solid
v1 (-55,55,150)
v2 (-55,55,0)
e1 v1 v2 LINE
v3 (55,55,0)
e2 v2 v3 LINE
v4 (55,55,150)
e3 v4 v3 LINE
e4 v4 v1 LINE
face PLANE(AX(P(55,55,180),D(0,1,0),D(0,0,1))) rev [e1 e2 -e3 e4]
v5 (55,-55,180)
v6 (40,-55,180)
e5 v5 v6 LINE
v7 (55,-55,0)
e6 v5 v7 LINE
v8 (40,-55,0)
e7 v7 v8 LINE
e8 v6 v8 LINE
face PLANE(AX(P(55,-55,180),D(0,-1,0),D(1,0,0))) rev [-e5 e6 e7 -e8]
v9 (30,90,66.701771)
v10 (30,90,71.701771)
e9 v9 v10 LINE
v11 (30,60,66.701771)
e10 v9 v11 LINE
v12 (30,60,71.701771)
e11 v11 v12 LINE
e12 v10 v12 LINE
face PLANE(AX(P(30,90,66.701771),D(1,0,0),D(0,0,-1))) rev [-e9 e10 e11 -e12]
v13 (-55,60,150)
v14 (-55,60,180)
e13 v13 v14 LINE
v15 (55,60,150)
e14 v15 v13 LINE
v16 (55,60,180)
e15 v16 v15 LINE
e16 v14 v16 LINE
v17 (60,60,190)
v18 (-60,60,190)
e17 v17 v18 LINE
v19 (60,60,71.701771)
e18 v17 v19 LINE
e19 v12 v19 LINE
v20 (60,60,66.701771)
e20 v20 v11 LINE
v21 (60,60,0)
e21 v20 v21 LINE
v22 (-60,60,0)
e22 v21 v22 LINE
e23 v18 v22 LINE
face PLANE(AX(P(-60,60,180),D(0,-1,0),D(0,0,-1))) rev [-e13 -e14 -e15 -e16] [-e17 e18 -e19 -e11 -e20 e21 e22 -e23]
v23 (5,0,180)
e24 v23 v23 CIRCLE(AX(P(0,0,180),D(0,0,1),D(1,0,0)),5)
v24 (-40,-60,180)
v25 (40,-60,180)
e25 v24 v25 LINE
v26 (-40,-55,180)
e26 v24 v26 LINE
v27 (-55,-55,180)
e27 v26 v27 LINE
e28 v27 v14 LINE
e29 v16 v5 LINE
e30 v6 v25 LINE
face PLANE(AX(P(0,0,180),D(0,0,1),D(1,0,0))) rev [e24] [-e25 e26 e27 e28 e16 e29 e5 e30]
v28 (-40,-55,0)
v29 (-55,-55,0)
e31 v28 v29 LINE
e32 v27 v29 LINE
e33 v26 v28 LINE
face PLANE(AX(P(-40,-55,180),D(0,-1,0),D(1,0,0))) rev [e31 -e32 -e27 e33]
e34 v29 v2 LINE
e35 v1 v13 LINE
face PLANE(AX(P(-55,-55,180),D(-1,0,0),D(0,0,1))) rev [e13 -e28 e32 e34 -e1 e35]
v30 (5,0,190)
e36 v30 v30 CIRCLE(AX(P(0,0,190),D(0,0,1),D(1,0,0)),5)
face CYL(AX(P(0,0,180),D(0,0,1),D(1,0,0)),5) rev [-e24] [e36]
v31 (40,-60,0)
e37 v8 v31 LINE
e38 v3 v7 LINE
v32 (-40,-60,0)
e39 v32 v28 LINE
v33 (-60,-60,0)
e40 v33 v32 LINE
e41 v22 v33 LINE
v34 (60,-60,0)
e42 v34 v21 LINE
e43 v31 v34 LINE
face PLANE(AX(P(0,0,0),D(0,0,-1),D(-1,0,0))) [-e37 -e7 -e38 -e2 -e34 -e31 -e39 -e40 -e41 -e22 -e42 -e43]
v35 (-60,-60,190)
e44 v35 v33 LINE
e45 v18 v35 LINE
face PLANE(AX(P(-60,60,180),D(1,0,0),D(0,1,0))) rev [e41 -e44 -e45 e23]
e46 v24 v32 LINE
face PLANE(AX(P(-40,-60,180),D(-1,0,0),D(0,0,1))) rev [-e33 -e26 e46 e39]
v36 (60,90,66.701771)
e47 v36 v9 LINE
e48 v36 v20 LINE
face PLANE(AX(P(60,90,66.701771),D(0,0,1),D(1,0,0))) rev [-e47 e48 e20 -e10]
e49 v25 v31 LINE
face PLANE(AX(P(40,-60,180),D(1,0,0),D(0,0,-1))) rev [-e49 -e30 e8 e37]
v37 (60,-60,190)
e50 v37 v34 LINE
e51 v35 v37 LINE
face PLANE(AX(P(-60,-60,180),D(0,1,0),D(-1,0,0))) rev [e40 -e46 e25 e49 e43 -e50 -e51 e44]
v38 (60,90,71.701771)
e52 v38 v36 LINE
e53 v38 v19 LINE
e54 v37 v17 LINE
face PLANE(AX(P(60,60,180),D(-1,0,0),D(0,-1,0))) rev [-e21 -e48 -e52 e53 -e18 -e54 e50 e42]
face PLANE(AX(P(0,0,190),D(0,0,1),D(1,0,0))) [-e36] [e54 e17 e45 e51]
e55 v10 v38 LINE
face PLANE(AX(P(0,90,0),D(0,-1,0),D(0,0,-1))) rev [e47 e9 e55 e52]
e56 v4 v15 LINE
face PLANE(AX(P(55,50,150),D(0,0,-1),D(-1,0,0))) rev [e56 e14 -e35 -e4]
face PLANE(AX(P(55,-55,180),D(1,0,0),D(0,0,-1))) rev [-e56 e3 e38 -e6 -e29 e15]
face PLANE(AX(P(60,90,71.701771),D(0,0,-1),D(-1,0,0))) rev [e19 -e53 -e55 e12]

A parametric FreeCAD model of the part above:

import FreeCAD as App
import Part
import Sketcher

V = App.Vector

doc = App.newDocument("Part")
body = doc.addObject("PartDesign::Body", "Body")

# Sketch on XY plane
sketch1 = doc.addObject("Sketcher::SketchObject", "Sketch")
body.addObject(sketch1)
sketch1.AttachmentSupport = (doc.XY_Plane, [""])
sketch1.MapMode = "FlatFace"
sketch1.addGeometry([
    Part.LineSegment(V(60, 60, 0), V(-60, 60, 0)),  # 0
    Part.LineSegment(V(-60, 60, 0), V(-60, -60, 0)),  # 1
    Part.LineSegment(V(-60, -60, 0), V(-40, -60, 0)),  # 2
    Part.LineSegment(V(-40, -60, 0), V(-40, -55, 0)),  # 3
    Part.LineSegment(V(-40, -55, 0), V(-55, -55, 0)),  # 4
    Part.LineSegment(V(-55, -55, 0), V(-55, 55, 0)),  # 5
    Part.LineSegment(V(-55, 55, 0), V(55, 55, 0)),  # 6
    Part.LineSegment(V(55, 55, 0), V(55, -55, 0)),  # 7
    Part.LineSegment(V(55, -55, 0), V(40, -55, 0)),  # 8
    Part.LineSegment(V(40, -55, 0), V(40, -60, 0)),  # 9
    Part.LineSegment(V(40, -60, 0), V(60, -60, 0)),  # 10
    Part.LineSegment(V(60, -60, 0), V(60, 60, 0)),  # 11
], False)
sketch1.addConstraint([
    Sketcher.Constraint("Coincident", 0, 2, 1, 1),
    Sketcher.Constraint("Coincident", 1, 2, 2, 1),
    Sketcher.Constraint("Coincident", 2, 2, 3, 1),
    Sketcher.Constraint("Coincident", 3, 2, 4, 1),
    Sketcher.Constraint("Coincident", 4, 2, 5, 1),
    Sketcher.Constraint("Coincident", 5, 2, 6, 1),
    Sketcher.Constraint("Coincident", 6, 2, 7, 1),
    Sketcher.Constraint("Coincident", 7, 2, 8, 1),
    Sketcher.Constraint("Coincident", 8, 2, 9, 1),
    Sketcher.Constraint("Coincident", 9, 2, 10, 1),
    Sketcher.Constraint("Coincident", 10, 2, 11, 1),
    Sketcher.Constraint("Coincident", 11, 2, 0, 1),
    Sketcher.Constraint("Horizontal", 0),
    Sketcher.Constraint("Vertical", 1),
    Sketcher.Constraint("Horizontal", 2),
    Sketcher.Constraint("Vertical", 3),
    Sketcher.Constraint("Horizontal", 4),
    Sketcher.Constraint("Vertical", 5),
    Sketcher.Constraint("Horizontal", 6),
    Sketcher.Constraint("Vertical", 7),
    Sketcher.Constraint("Horizontal", 8),
    Sketcher.Constraint("Vertical", 9),
    Sketcher.Constraint("Horizontal", 10),
    Sketcher.Constraint("Vertical", 11),
    Sketcher.Constraint("Symmetric", 4, 2, 6, 2, -1, 1),
    Sketcher.Constraint("Symmetric", 0, 2, 10, 2, -1, 1),
    Sketcher.Constraint("Symmetric", 3, 2, 8, 2, -2),
    Sketcher.Constraint("Horizontal", 2, 2, 9, 2),
    Sketcher.Constraint("Equal", 0, 1),
    Sketcher.Constraint("Equal", 6, 5),
    Sketcher.Constraint("DistanceX", 0, 2, 0, 1, 120.0),
    Sketcher.Constraint("DistanceX", 2, 1, 2, 2, 20.0),
    Sketcher.Constraint("DistanceX", 4, 2, 4, 1, 15.0),
])
pad1 = doc.addObject("PartDesign::Pad", "Pad")
body.addObject(pad1)
pad1.Profile = sketch1
pad1.Length = 180

# Sketch on XY plane
sketch2 = doc.addObject("Sketcher::SketchObject", "Sketch001")
body.addObject(sketch2)
sketch2.AttachmentSupport = (doc.XY_Plane, [""])
sketch2.MapMode = "FlatFace"
sketch2.AttachmentOffset = App.Placement(V(0, 0, 180), App.Rotation())
sketch2.addGeometry([
    Part.LineSegment(V(-60, 60, 0), V(-60, -60, 0)),
    Part.LineSegment(V(-60, -60, 0), V(60, -60, 0)),
    Part.LineSegment(V(60, -60, 0), V(60, 60, 0)),
    Part.LineSegment(V(60, 60, 0), V(-60, 60, 0)),
], False)
sketch2.addConstraint([
    Sketcher.Constraint("Coincident", 0, 2, 1, 1),
    Sketcher.Constraint("Coincident", 1, 2, 2, 1),
    Sketcher.Constraint("Coincident", 2, 2, 3, 1),
    Sketcher.Constraint("Coincident", 3, 2, 0, 1),
    Sketcher.Constraint("Vertical", 0),
    Sketcher.Constraint("Horizontal", 1),
    Sketcher.Constraint("Vertical", 2),
    Sketcher.Constraint("Horizontal", 3),
    Sketcher.Constraint("Symmetric", 0, 2, 2, 2, -1, 1),
    Sketcher.Constraint("Equal", 3, 0),
    Sketcher.Constraint("DistanceX", 1, 1, 1, 2, 120.0),
])
pad2 = doc.addObject("PartDesign::Pad", "Pad001")
body.addObject(pad2)
pad2.Profile = sketch2
pad2.Length = 10

# Sketch on XY plane
sketch3 = doc.addObject("Sketcher::SketchObject", "Sketch002")
body.addObject(sketch3)
sketch3.AttachmentSupport = (doc.XY_Plane, [""])
sketch3.MapMode = "FlatFace"
sketch3.AttachmentOffset = App.Placement(V(0, 0, 190), App.Rotation())
sketch3.addGeometry(Part.Circle(V(0, 0, 0), V(0, 0, 1), 5), False)
sketch3.addConstraint([
    Sketcher.Constraint("Coincident", 0, 3, -1, 1),
    Sketcher.Constraint("Diameter", 0, 10.0),
])
pocket1 = doc.addObject("PartDesign::Pocket", "Pocket")
body.addObject(pocket1)
pocket1.Profile = sketch3
pocket1.Length = 10

# Sketch on XZ plane
sketch4 = doc.addObject("Sketcher::SketchObject", "Sketch003")
body.addObject(sketch4)
sketch4.AttachmentSupport = (doc.XZ_Plane, [""])
sketch4.MapMode = "FlatFace"
sketch4.AttachmentOffset = App.Placement(V(0, 0, -60), App.Rotation())
sketch4.addGeometry([
    Part.LineSegment(V(-55, 150, 0), V(-55, 180, 0)),
    Part.LineSegment(V(-55, 180, 0), V(55, 180, 0)),
    Part.LineSegment(V(55, 180, 0), V(55, 150, 0)),
    Part.LineSegment(V(55, 150, 0), V(-55, 150, 0)),
], False)
sketch4.addConstraint([
    Sketcher.Constraint("Coincident", 0, 2, 1, 1),
    Sketcher.Constraint("Coincident", 1, 2, 2, 1),
    Sketcher.Constraint("Coincident", 2, 2, 3, 1),
    Sketcher.Constraint("Coincident", 3, 2, 0, 1),
    Sketcher.Constraint("Vertical", 0),
    Sketcher.Constraint("Horizontal", 1),
    Sketcher.Constraint("Vertical", 2),
    Sketcher.Constraint("Horizontal", 3),
    Sketcher.Constraint("DistanceX", 1, 1, 1, 2, 110.0),
    Sketcher.Constraint("DistanceY", 0, 1, 0, 2, 30.0),
    Sketcher.Constraint("DistanceX", 0, 2, -1, 1, 55.0),
    Sketcher.Constraint("DistanceY", -1, 1, 0, 2, 180.0),
])
pocket2 = doc.addObject("PartDesign::Pocket", "Pocket001")
body.addObject(pocket2)
pocket2.Profile = sketch4
pocket2.Length = 10
pocket2.Reversed = True

# Sketch on XZ plane
sketch5 = doc.addObject("Sketcher::SketchObject", "Sketch004")
body.addObject(sketch5)
sketch5.AttachmentSupport = (doc.XZ_Plane, [""])
sketch5.MapMode = "FlatFace"
sketch5.AttachmentOffset = App.Placement(V(0, 0, -60), App.Rotation())
sketch5.addGeometry([
    Part.LineSegment(V(30, 67, 0), V(30, 72, 0)),
    Part.LineSegment(V(30, 72, 0), V(60, 72, 0)),
    Part.LineSegment(V(60, 72, 0), V(60, 67, 0)),
    Part.LineSegment(V(60, 67, 0), V(30, 67, 0)),
], False)
sketch5.addConstraint([
    Sketcher.Constraint("Coincident", 0, 2, 1, 1),
    Sketcher.Constraint("Coincident", 1, 2, 2, 1),
    Sketcher.Constraint("Coincident", 2, 2, 3, 1),
    Sketcher.Constraint("Coincident", 3, 2, 0, 1),
    Sketcher.Constraint("Vertical", 0),
    Sketcher.Constraint("Horizontal", 1),
    Sketcher.Constraint("Vertical", 2),
    Sketcher.Constraint("Horizontal", 3),
    Sketcher.Constraint("DistanceX", 1, 1, 1, 2, 30.0),
    Sketcher.Constraint("DistanceY", 0, 1, 0, 2, 5.0),
    Sketcher.Constraint("DistanceX", -1, 1, 0, 2, 30.0),
    Sketcher.Constraint("DistanceY", -1, 1, 0, 2, 71.701771),
])
pad3 = doc.addObject("PartDesign::Pad", "Pad002")
body.addObject(pad3)
pad3.Profile = sketch5
pad3.Length = 30
pad3.Reversed = True

doc.recompute()
